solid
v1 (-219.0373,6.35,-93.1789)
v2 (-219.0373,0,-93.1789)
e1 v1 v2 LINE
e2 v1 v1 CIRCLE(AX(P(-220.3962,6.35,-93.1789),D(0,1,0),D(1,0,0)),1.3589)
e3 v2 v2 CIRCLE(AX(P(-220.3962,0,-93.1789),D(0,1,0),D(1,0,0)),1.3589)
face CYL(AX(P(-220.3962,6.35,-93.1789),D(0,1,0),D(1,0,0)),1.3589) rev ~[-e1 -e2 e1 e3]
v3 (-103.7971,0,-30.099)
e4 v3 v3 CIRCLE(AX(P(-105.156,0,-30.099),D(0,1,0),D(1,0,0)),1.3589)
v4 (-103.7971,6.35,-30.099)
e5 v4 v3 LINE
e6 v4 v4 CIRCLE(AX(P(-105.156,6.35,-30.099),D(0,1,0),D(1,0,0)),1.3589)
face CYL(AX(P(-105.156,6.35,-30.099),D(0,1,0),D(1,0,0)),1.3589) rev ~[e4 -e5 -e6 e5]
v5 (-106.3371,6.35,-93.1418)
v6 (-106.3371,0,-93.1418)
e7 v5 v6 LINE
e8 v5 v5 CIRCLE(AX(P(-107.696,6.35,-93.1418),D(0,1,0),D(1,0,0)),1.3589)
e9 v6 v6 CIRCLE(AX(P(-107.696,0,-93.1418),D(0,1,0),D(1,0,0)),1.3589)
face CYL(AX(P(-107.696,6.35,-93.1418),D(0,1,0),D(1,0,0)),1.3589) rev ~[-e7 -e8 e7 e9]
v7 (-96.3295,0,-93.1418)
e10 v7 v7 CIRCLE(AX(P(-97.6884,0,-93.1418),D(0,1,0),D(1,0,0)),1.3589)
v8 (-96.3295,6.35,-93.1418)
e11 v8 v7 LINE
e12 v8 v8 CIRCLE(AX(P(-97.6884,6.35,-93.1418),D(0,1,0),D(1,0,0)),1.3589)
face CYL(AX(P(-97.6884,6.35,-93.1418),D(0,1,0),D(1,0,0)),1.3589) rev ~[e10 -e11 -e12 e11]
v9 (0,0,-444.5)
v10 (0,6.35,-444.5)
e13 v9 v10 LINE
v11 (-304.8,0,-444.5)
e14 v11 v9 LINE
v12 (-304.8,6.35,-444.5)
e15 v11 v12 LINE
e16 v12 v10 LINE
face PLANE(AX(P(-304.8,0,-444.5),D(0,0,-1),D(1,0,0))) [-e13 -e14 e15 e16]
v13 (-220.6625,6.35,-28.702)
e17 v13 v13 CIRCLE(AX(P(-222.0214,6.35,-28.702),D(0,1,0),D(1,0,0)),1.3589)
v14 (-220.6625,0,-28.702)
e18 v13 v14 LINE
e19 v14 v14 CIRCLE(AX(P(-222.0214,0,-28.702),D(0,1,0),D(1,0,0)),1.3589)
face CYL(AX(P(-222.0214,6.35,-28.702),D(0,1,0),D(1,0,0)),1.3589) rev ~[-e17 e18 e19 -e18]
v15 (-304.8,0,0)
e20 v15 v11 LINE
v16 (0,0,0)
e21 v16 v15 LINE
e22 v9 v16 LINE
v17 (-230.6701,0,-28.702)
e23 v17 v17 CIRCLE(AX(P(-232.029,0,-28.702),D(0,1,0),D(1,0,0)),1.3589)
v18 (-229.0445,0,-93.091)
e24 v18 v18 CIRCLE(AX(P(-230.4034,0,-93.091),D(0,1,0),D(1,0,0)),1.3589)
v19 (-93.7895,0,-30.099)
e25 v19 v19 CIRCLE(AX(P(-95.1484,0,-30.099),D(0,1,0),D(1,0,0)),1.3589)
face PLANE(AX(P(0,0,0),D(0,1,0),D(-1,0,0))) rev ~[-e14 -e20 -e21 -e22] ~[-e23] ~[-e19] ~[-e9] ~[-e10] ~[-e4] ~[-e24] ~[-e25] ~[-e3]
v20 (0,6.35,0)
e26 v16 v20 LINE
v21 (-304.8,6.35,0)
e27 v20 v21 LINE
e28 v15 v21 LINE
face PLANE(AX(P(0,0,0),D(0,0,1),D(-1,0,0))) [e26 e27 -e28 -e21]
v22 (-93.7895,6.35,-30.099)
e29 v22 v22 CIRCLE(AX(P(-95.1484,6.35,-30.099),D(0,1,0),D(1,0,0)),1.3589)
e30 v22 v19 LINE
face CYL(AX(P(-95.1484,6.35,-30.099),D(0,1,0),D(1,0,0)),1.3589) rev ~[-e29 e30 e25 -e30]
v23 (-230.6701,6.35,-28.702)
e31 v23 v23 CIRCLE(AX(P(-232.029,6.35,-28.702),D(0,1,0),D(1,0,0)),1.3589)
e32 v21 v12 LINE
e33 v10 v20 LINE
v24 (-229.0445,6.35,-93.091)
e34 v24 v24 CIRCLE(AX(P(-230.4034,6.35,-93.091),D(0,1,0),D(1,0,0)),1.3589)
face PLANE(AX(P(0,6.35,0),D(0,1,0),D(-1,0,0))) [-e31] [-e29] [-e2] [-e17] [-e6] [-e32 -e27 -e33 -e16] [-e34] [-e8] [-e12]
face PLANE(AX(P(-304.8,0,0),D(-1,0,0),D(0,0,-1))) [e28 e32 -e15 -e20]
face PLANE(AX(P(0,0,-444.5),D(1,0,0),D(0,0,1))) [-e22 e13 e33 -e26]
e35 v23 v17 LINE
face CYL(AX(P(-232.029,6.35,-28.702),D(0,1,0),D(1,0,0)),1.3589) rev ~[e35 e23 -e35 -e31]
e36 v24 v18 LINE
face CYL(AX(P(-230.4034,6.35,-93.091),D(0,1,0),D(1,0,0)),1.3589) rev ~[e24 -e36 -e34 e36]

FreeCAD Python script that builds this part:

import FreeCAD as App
import Part
import Sketcher
from FreeCAD import Vector
Q = App.Units.Quantity

doc = App.newDocument("Part")
params = doc.addObject("Spreadsheet::Sheet", "Params")
for row, (alias, value) in enumerate([
    ("sketch1_width", "12 in"),
    ("sketch1_height", "17.5 in"),
    ("pad1_length", "0.25 in"),
    ("sketch2_diameter", "0.107 in"),
    ("pocket1_length", "1 in"),
    ("sketch3_diameter", "0.107 in"),
    ("pocket2_length", "1 in"),
    ("sketch4_diameter", "0.107 in"),
    ("pocket3_length", "1 in"),
    ("sketch5_diameter", "0.107 in"),
    ("pocket4_length", "1 in"),
], start=1):
    params.set(f"A{row}", alias)
    params.set(f"B{row}", "=" + value)
    params.setAlias(f"B{row}", alias)

body = doc.addObject("PartDesign::Body", "Body")

# Sketch on XZ plane
sketch1 = body.newObject("Sketcher::SketchObject", "Sketch")
sketch1.AttachmentSupport = (doc.getObject("XZ_Plane"), [""])
sketch1.MapMode = "FlatFace"
sketch1.addGeometry([
    Part.LineSegment(Vector(-305, 0, 0), Vector(0, 0, 0)),
    Part.LineSegment(Vector(0, 0, 0), Vector(0, -444, 0)),
    Part.LineSegment(Vector(0, -444, 0), Vector(-305, -444, 0)),
    Part.LineSegment(Vector(-305, -444, 0), Vector(-305, 0, 0)),
], False)
sketch1.addConstraint([
    Sketcher.Constraint("Coincident", 0, 2, 1, 1),
    Sketcher.Constraint("Coincident", 1, 2, 2, 1),
    Sketcher.Constraint("Coincident", 2, 2, 3, 1),
    Sketcher.Constraint("Coincident", 3, 2, 0, 1),
    Sketcher.Constraint("Horizontal", 0),
    Sketcher.Constraint("Vertical", 1),
    Sketcher.Constraint("Horizontal", 2),
    Sketcher.Constraint("Vertical", 3),
    Sketcher.Constraint("Coincident", 0, 2, -1, 1),
    Sketcher.Constraint("DistanceX", 0, 1, 0, 2, Q("12 in")),
    Sketcher.Constraint("DistanceY", 1, 2, 1, 1, Q("17.5 in")),
])
sketch1.setExpression("Constraints[9]", "Params.sketch1_width")
sketch1.setExpression("Constraints[10]", "Params.sketch1_height")
pad1 = body.newObject("PartDesign::Pad", "Pad")
pad1.Profile = sketch1
pad1.setExpression("Length", "Params.pad1_length")
pad1.Reversed = True

# Sketch on XZ plane
sketch2 = body.newObject("Sketcher::SketchObject", "Sketch001")
sketch2.AttachmentSupport = (doc.getObject("XZ_Plane"), [""])
sketch2.MapMode = "FlatFace"
sketch2.AttachmentOffset = App.Placement(Vector(0, 0, -0.25 * 25.4), App.Rotation())
sketch2.addGeometry([
    Part.Circle(Vector(-95.1, -30.1, 0), Vector(0, 0, 1), 1.4),
    Part.Circle(Vector(-105.2, -30.1, 0), Vector(0, 0, 1), 1.4),
], False)
sketch2.addConstraint([
    Sketcher.Constraint("Equal", 0, 1),
    Sketcher.Constraint("Horizontal", 0, 3, 1, 3),
    Sketcher.Constraint("Diameter", 0, Q("0.107 in")),
    Sketcher.Constraint("DistanceX", 0, 3, -1, 1, Q("3.746 in")),
    Sketcher.Constraint("DistanceY", 0, 3, -1, 1, Q("1.185 in")),
    Sketcher.Constraint("DistanceX", 1, 3, 0, 3, Q("0.394 in")),
])
sketch2.setExpression("Constraints[2]", "Params.sketch2_diameter")
pocket1 = body.newObject("PartDesign::Pocket", "Pocket")
pocket1.Profile = sketch2
pocket1.setExpression("Length", "Params.pocket1_length")
pocket1.Reversed = True

# Sketch on XZ plane
sketch3 = body.newObject("Sketcher::SketchObject", "Sketch002")
sketch3.AttachmentSupport = (doc.getObject("XZ_Plane"), [""])
sketch3.MapMode = "FlatFace"
sketch3.AttachmentOffset = App.Placement(Vector(0, 0, -0.25 * 25.4), App.Rotation())
sketch3.addGeometry([
    Part.Circle(Vector(-107.7, -93.1, 0), Vector(0, 0, 1), 1.4),
    Part.Circle(Vector(-97.7, -93.1, 0), Vector(0, 0, 1), 1.4),
], False)
sketch3.addConstraint([
    Sketcher.Constraint("Equal", 0, 1),
    Sketcher.Constraint("Horizontal", 0, 3, 1, 3),
    Sketcher.Constraint("Diameter", 0, Q("0.107 in")),
    Sketcher.Constraint("DistanceX", 1, 3, -1, 1, Q("3.846 in")),
    Sketcher.Constraint("DistanceX", 0, 3, 1, 3, Q("0.394 in")),
    Sketcher.Constraint("DistanceY", 0, 3, -1, 1, Q("3.667 in")),
])
sketch3.setExpression("Constraints[2]", "Params.sketch3_diameter")
pocket2 = body.newObject("PartDesign::Pocket", "Pocket001")
pocket2.Profile = sketch3
pocket2.setExpression("Length", "Params.pocket2_length")
pocket2.Reversed = True

# Sketch on XZ plane
sketch4 = body.newObject("Sketcher::SketchObject", "Sketch003")
sketch4.AttachmentSupport = (doc.getObject("XZ_Plane"), [""])
sketch4.MapMode = "FlatFace"
sketch4.AttachmentOffset = App.Placement(Vector(0, 0, -0.25 * 25.4), App.Rotation())
sketch4.addGeometry([
    Part.Circle(Vector(-230.4, -93.1, 0), Vector(0, 0, 1), 1.4),
    Part.Circle(Vector(-220.4, -93.2, 0), Vector(0, 0, 1), 1.4),
], False)
sketch4.addConstraint([
    Sketcher.Constraint("Equal", 0, 1),
    Sketcher.Constraint("Diameter", 0, Q("0.107 in")),
    Sketcher.Constraint("DistanceY", 0, 3, -1, 1, Q("3.665 in")),
    Sketcher.Constraint("DistanceX", 0, 3, 1, 3, Q("10.0072 mm")),
    Sketcher.Constraint("DistanceX", 0, 3, -1, 1, Q("9.071 in")),
    Sketcher.Constraint("DistanceY", 1, 3, -1, 1, Q("93.179 mm")),
])
sketch4.setExpression("Constraints[1]", "Params.sketch4_diameter")
pocket3 = body.newObject("PartDesign::Pocket", "Pocket002")
pocket3.Profile = sketch4
pocket3.setExpression("Length", "Params.pocket3_length")
pocket3.Reversed = True

# Sketch on XZ plane
sketch5 = body.newObject("Sketcher::SketchObject", "Sketch004")
sketch5.AttachmentSupport = (doc.getObject("XZ_Plane"), [""])
sketch5.MapMode = "FlatFace"
sketch5.AttachmentOffset = App.Placement(Vector(0, 0, -0.25 * 25.4), App.Rotation())
sketch5.addGeometry([
    Part.Circle(Vector(-232, -28.7, 0), Vector(0, 0, 1), 1.4),
    Part.Circle(Vector(-222, -28.7, 0), Vector(0, 0, 1), 1.4),
], False)
sketch5.addConstraint([
    Sketcher.Constraint("Equal", 0, 1),
    Sketcher.Constraint("Horizontal", 0, 3, 1, 3),
    Sketcher.Constraint("Diameter", 0, Q("0.107 in")),
    Sketcher.Constraint("DistanceY", 0, 3, -1, 1, Q("1.13 in")),
    Sketcher.Constraint("DistanceX", 1, 3, -1, 1, Q("8.741 in")),
    Sketcher.Constraint("DistanceX", 0, 3, 1, 3, Q("0.394 in")),
])
sketch5.setExpression("Constraints[2]", "Params.sketch5_diameter")
pocket4 = body.newObject("PartDesign::Pocket", "Pocket003")
pocket4.Profile = sketch5
pocket4.setExpression("Length", "Params.pocket4_length")
pocket4.Reversed = True

doc.recompute()
